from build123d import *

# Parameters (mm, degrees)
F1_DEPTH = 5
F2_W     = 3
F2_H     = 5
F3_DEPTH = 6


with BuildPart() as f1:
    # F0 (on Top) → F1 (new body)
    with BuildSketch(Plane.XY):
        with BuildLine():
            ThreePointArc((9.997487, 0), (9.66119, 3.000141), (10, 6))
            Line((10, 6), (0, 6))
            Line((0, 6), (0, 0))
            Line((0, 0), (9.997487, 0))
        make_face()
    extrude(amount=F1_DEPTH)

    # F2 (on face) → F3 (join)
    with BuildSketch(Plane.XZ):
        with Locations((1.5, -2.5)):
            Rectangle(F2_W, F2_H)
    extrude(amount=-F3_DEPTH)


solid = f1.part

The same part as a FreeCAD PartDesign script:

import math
import FreeCAD as App
import Part
import Sketcher
Q = App.Units.Quantity


def add_polygon(sketch, points):
    """Adds a closed chain of lines whose ends are joined by coincident constraints."""
    first, n = sketch.GeometryCount, len(points)
    for a, b in zip(points, points[1:] + points[:1]):
        sketch.addGeometry(Part.LineSegment(App.Vector(*a, 0), App.Vector(*b, 0)), False)
    for i in range(n):
        sketch.addConstraint(Sketcher.Constraint("Coincident", first + i, 2, first + (i + 1) % n, 1))

doc = App.newDocument("Part")
params = doc.addObject("Spreadsheet::Sheet", "Params")
for row, (alias, value) in enumerate([
    ("sketch1_radius", "13.499998 mm"),
    ("sketch1_width", "10 mm"),
    ("sketch1_height", "6 mm"),
    ("pad1_length", "5 mm"),
    ("sketch2_width", "3 mm"),
    ("sketch2_height", "5 mm"),
    ("pad2_length", "6 mm"),
], start=1):
    params.set(f"A{row}", alias)
    params.set(f"B{row}", "=" + value)
    params.setAlias(f"B{row}", alias)

body = doc.addObject("PartDesign::Body", "Body")

# Sketch on XY plane
sketch1 = body.newObject("Sketcher::SketchObject", "Sketch")
sketch1.AttachmentSupport = (doc.getObject("XY_Plane"), [""])
sketch1.MapMode = "FlatFace"
sketch1.addGeometry(Part.ArcOfCircle(Part.Circle(App.Vector(23.161187, 2.994487, 0), App.Vector(0, 0, 1), 13.499998), math.radians(167.136411), math.radians(192.815594)), False)
sketch1.addGeometry(Part.LineSegment(App.Vector(10, 6, 0), App.Vector(0, 6, 0)), False)
sketch1.addGeometry(Part.LineSegment(App.Vector(0, 6, 0), App.Vector(0, 0, 0)), False)
sketch1.addGeometry(Part.LineSegment(App.Vector(0, 0, 0), App.Vector(9.997487, 0, 0)), False)
sketch1.addConstraint(Sketcher.Constraint("Coincident", 0, 1, 1, 1))
sketch1.addConstraint(Sketcher.Constraint("Coincident", 1, 2, 2, 1))
sketch1.addConstraint(Sketcher.Constraint("Coincident", 2, 2, 3, 1))
sketch1.addConstraint(Sketcher.Constraint("Coincident", 3, 2, 0, 2))
sketch1.addConstraint(Sketcher.Constraint("Horizontal", 1))
sketch1.addConstraint(Sketcher.Constraint("Vertical", 2))
sketch1.addConstraint(Sketcher.Constraint("Horizontal", 3))
sketch1.addConstraint(Sketcher.Constraint("Coincident", 2, 2, -1, 1))
sketch1.addConstraint(Sketcher.Constraint("Radius", 0, Q("13.499998 mm")))
sketch1.addConstraint(Sketcher.Constraint("DistanceX", 1, 2, 1, 1, Q("10 mm")))
sketch1.addConstraint(Sketcher.Constraint("DistanceY", 2, 2, 2, 1, Q("6 mm")))
sketch1.addConstraint(Sketcher.Constraint("DistanceX", 3, 2, 0, 3, Q("13.1637 mm")))
sketch1.setExpression("Constraints[8]", "Params.sketch1_radius")
sketch1.setExpression("Constraints[9]", "Params.sketch1_width")
sketch1.setExpression("Constraints[10]", "Params.sketch1_height")
pad1 = body.newObject("PartDesign::Pad", "Pad")
pad1.Profile = sketch1
pad1.setExpression("Length", "Params.pad1_length")

# Sketch on XZ plane
sketch2 = body.newObject("Sketcher::SketchObject", "Sketch001")
sketch2.AttachmentSupport = (doc.getObject("XZ_Plane"), [""])
sketch2.MapMode = "FlatFace"
add_polygon(sketch2, [(0, 0), (0, -5), (3, -5), (3, 0)])  # lines 0-3
sketch2.addConstraint(Sketcher.Constraint("Vertical", 0))
sketch2.addConstraint(Sketcher.Constraint("Horizontal", 1))
sketch2.addConstraint(Sketcher.Constraint("Vertical", 2))
sketch2.addConstraint(Sketcher.Constraint("Horizontal", 3))
sketch2.addConstraint(Sketcher.Constraint("Coincident", 3, 2, -1, 1))
sketch2.addConstraint(Sketcher.Constraint("DistanceX", 1, 1, 1, 2, Q("3 mm")))
sketch2.addConstraint(Sketcher.Constraint("DistanceY", 0, 2, 0, 1, Q("5 mm")))
sketch2.setExpression("Constraints[9]", "Params.sketch2_width")
sketch2.setExpression("Constraints[10]", "Params.sketch2_height")
pad2 = body.newObject("PartDesign::Pad", "Pad001")
pad2.Profile = sketch2
pad2.setExpression("Length", "Params.pad2_length")
pad2.Reversed = True

doc.recompute()
